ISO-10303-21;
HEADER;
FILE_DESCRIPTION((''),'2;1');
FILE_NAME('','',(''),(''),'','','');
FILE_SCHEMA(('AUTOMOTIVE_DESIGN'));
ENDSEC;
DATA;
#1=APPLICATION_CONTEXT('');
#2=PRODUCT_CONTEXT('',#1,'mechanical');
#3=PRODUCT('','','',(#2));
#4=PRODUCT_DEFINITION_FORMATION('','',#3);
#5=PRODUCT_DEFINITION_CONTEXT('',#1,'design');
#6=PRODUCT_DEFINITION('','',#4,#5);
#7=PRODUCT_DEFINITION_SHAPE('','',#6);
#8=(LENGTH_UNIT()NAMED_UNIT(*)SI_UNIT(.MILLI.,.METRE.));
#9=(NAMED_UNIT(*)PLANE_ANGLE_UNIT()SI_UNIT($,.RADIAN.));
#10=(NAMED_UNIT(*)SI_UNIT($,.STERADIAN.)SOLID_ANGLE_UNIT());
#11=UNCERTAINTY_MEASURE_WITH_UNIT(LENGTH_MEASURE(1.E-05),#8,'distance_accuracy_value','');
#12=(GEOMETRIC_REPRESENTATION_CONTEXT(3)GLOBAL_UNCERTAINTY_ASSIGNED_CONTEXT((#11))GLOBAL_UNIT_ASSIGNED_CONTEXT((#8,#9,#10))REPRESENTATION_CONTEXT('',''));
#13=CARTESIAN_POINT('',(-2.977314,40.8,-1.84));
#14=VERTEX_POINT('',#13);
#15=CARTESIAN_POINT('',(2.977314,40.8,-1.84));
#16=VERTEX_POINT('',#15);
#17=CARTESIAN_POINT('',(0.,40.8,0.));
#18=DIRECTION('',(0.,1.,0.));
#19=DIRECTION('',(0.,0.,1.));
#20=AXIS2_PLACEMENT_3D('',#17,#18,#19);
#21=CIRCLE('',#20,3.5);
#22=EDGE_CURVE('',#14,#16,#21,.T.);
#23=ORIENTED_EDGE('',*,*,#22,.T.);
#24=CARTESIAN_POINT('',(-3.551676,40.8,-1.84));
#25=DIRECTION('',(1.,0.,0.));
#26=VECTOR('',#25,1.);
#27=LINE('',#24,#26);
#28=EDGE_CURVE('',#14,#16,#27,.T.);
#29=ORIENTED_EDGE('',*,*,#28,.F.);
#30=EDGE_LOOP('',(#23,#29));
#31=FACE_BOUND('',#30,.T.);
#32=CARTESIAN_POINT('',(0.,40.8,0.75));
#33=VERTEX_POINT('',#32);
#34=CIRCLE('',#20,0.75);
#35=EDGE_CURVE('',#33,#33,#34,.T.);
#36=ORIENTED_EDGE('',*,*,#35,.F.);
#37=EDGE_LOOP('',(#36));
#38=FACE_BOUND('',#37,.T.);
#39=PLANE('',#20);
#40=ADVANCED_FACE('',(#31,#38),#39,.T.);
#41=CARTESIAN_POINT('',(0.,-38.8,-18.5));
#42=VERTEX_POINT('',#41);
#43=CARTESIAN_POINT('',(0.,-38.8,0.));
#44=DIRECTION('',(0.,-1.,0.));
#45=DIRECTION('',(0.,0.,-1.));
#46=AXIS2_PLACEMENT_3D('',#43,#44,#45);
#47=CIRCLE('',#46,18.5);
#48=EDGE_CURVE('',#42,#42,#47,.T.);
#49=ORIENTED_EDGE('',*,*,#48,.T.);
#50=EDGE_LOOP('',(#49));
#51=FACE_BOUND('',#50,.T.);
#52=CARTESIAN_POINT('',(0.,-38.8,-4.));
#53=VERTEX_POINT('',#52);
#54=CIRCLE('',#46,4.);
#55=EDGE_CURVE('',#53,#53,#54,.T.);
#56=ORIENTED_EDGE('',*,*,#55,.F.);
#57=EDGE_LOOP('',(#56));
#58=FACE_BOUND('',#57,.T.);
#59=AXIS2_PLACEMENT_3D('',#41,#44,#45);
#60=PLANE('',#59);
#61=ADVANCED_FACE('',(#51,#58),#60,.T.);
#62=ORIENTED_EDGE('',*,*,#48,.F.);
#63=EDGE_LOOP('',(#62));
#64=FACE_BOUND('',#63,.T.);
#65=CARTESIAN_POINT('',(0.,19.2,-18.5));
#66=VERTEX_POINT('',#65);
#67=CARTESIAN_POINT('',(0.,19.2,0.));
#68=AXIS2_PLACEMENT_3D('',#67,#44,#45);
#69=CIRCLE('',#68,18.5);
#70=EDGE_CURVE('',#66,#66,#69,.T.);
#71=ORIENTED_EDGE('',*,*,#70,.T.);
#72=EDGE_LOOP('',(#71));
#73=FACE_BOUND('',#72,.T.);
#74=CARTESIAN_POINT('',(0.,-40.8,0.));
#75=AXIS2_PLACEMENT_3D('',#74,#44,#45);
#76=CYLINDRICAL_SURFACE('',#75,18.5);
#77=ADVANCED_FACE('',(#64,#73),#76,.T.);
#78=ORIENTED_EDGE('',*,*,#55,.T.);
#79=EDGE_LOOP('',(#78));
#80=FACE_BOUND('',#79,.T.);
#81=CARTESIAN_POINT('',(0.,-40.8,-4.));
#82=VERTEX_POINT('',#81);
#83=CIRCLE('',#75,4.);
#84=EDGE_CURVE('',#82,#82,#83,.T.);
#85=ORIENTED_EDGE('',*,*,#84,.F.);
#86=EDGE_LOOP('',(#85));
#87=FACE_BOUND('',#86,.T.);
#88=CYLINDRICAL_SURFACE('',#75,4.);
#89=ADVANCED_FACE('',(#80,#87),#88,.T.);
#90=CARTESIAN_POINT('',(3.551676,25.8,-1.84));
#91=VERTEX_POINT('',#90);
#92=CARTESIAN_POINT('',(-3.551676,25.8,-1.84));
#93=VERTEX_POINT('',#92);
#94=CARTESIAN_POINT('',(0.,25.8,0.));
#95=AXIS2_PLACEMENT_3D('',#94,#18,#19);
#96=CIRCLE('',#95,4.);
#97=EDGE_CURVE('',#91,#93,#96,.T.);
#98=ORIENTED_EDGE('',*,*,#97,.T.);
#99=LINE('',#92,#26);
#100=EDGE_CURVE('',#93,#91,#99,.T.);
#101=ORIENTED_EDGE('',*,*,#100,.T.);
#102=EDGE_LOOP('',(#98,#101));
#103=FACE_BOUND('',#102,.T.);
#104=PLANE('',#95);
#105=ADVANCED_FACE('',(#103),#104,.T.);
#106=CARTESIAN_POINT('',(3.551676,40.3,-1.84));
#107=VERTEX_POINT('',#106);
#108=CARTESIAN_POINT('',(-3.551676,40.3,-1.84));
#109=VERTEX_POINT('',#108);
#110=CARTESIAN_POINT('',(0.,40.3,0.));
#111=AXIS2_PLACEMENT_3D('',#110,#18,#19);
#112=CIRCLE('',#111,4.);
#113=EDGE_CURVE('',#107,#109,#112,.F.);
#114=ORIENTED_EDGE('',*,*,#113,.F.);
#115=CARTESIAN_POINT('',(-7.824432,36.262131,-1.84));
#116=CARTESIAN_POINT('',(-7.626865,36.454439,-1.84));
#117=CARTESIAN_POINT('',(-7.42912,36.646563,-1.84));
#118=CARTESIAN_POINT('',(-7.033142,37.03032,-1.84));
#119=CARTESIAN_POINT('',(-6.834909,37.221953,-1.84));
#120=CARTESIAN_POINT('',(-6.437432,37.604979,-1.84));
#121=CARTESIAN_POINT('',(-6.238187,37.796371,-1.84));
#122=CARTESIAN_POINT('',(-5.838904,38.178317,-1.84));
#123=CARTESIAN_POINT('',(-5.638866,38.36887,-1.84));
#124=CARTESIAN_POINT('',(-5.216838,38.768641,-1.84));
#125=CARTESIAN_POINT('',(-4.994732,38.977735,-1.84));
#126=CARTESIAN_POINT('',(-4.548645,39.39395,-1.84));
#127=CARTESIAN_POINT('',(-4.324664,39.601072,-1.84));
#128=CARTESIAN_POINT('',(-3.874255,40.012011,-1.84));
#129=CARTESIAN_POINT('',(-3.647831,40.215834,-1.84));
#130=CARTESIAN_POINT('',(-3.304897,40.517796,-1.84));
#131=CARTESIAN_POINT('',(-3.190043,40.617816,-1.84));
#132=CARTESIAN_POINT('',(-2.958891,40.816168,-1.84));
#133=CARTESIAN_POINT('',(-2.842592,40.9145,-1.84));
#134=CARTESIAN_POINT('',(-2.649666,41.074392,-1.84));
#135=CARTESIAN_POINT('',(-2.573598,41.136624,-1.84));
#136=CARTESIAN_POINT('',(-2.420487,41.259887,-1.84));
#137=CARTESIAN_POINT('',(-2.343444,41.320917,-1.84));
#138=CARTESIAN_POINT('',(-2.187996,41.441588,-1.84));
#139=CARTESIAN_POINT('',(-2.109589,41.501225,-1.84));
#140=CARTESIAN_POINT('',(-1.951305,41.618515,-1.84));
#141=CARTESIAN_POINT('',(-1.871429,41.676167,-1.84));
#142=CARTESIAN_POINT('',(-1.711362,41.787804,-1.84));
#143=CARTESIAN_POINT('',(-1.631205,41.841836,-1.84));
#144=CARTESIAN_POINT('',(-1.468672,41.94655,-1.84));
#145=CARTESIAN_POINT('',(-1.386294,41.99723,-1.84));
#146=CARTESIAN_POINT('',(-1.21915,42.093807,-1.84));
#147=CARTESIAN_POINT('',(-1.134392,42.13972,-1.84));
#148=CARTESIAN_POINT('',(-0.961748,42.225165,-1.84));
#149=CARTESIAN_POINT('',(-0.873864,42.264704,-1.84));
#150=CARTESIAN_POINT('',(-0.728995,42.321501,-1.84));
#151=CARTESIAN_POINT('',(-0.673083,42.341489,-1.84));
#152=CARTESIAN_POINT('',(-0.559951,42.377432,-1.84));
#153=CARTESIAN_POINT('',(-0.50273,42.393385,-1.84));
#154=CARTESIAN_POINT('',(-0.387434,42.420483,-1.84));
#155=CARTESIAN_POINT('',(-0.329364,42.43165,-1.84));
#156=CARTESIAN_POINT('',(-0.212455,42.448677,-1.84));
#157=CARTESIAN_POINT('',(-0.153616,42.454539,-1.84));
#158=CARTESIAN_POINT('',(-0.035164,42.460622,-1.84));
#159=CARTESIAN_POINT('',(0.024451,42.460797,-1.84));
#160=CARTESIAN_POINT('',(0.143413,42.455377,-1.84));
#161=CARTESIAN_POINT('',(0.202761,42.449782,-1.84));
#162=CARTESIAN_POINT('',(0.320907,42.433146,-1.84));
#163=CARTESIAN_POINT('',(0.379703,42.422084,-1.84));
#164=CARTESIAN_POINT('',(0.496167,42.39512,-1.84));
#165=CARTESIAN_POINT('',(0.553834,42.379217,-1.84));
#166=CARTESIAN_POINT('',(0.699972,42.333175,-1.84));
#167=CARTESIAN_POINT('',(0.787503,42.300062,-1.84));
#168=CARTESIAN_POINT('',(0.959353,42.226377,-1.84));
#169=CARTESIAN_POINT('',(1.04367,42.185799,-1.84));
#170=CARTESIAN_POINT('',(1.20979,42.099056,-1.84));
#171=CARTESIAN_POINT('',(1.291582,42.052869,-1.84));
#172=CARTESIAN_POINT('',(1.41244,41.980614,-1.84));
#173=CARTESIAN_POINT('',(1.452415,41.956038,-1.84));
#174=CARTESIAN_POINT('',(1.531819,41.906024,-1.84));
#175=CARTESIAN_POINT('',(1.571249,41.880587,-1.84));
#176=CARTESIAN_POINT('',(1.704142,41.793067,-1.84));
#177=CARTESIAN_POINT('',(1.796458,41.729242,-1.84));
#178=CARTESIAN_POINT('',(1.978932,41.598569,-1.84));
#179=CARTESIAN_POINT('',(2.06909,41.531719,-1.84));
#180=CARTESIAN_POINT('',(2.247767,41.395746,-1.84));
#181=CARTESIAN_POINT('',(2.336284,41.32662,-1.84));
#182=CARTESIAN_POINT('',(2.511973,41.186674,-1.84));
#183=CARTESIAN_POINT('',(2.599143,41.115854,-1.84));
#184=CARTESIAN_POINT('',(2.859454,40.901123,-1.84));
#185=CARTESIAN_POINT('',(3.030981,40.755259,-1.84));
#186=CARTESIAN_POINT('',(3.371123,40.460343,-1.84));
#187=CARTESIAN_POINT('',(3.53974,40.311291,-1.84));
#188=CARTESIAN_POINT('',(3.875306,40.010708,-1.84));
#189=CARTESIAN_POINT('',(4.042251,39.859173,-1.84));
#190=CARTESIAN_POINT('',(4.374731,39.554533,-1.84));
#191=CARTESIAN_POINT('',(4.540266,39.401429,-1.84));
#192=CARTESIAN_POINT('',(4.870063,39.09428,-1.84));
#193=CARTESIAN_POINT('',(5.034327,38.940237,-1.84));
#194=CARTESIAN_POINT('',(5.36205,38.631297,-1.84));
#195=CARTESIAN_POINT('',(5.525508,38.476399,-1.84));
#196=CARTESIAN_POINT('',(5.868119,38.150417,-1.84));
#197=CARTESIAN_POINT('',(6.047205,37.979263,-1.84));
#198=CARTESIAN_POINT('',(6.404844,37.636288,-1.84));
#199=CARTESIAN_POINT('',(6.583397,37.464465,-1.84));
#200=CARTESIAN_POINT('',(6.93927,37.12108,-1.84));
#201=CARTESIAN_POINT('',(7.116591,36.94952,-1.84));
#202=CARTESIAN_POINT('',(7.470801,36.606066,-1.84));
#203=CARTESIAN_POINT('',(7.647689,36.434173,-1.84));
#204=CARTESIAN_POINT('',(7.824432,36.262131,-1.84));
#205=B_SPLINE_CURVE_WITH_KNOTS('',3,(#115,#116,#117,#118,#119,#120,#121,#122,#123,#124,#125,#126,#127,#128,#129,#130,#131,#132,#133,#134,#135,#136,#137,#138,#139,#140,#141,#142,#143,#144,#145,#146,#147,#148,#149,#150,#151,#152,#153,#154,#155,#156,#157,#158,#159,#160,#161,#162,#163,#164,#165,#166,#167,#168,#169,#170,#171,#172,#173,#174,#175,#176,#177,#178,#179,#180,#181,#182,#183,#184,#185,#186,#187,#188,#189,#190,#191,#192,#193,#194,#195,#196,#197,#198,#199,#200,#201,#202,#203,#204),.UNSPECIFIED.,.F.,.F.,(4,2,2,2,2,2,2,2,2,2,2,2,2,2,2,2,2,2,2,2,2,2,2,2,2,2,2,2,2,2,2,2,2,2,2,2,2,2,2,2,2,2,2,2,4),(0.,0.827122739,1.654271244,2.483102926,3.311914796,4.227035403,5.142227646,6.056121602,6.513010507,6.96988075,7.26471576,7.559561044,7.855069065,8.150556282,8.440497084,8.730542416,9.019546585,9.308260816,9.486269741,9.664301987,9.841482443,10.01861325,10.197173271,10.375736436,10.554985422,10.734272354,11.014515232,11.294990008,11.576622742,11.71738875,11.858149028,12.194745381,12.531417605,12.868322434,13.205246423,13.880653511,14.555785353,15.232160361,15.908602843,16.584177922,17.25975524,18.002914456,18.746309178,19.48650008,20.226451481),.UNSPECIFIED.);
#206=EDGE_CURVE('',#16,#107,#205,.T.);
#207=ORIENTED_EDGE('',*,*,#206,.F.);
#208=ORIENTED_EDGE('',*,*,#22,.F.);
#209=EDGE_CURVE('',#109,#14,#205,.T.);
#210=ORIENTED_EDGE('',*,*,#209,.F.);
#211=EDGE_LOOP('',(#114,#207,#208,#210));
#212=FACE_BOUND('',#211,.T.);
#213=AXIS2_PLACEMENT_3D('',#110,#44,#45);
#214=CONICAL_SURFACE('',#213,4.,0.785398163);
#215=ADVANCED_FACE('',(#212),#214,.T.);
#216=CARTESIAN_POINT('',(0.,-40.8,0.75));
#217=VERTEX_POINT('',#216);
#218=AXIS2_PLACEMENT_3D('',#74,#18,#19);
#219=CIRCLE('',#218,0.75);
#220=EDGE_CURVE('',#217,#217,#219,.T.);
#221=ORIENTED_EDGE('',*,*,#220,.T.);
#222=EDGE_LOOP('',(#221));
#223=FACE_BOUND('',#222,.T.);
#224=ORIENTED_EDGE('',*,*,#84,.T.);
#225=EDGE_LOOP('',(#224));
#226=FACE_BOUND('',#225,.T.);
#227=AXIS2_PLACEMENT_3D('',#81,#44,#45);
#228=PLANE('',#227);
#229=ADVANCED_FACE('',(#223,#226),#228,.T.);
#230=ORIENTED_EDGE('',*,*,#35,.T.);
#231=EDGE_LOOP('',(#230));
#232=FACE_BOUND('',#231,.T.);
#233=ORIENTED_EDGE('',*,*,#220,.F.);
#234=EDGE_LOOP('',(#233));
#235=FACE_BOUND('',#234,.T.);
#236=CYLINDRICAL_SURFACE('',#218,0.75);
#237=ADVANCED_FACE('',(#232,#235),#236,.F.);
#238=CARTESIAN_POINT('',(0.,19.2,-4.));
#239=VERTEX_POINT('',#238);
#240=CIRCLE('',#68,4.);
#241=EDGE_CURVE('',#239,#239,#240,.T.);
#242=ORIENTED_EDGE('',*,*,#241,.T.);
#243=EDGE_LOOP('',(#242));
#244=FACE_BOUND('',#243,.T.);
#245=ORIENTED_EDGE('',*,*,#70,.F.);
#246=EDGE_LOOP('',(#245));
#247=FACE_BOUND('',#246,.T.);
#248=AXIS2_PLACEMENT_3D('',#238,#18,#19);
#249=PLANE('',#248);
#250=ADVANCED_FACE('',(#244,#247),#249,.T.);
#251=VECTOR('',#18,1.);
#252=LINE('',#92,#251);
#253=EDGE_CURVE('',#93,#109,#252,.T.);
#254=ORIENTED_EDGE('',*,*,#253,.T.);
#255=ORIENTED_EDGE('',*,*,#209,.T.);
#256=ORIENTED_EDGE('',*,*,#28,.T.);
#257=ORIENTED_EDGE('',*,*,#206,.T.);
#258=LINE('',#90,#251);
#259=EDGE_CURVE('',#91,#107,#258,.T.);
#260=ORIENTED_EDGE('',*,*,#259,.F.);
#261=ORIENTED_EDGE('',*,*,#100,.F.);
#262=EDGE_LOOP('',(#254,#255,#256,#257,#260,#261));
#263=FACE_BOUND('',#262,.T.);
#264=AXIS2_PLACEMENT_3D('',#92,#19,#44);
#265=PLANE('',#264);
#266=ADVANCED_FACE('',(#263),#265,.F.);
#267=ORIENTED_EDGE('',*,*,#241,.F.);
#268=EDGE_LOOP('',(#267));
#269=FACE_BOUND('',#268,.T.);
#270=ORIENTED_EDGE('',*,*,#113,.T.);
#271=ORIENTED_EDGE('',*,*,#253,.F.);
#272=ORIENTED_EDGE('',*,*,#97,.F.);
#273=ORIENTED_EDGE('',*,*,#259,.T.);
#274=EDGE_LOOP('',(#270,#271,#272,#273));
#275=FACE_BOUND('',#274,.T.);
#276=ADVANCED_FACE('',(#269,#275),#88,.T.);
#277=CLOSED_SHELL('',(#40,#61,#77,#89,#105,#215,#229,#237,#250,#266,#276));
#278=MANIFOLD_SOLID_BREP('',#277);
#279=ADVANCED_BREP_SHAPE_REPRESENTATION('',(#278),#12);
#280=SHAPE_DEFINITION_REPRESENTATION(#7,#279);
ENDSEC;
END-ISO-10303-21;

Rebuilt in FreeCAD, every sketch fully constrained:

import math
import FreeCAD as App
import Part
import Sketcher

V = App.Vector
Q = App.Units.Quantity


def edges_at(feature, points):
    """Names of the edges that pass closest to the given points."""
    edges = feature.Shape.Edges
    near = lambda p: min(range(len(edges)), key=lambda i: edges[i].distToShape(Part.Vertex(*p))[0])
    return sorted({f"Edge{near(p) + 1}" for p in points})

doc = App.newDocument("Part")
body = doc.addObject("PartDesign::Body", "Body")

# Sketch on YZ plane
sketch1 = body.newObject("Sketcher::SketchObject", "Sketch")
sketch1.AttachmentSupport = (doc.getObject("YZ_Plane"), [""])
sketch1.MapMode = "FlatFace"
sketch1.addGeometry([
    Part.LineSegment(V(40.8, 0, 0), V(-40.8, 0, 0)),  # 0
    Part.LineSegment(V(-40.8, 0, 0), V(-40.8, -4, 0)),  # 1
    Part.LineSegment(V(-40.8, -4, 0), V(-38.8, -4, 0)),  # 2
    Part.LineSegment(V(-38.8, -4, 0), V(-38.8, -18.5, 0)),  # 3
    Part.LineSegment(V(-38.8, -18.5, 0), V(19.2, -18.5, 0)),  # 4
    Part.LineSegment(V(19.2, -18.5, 0), V(19.2, -4, 0)),  # 5
    Part.LineSegment(V(19.2, -4, 0), V(40.8, -4, 0)),  # 6
    Part.LineSegment(V(40.8, -4, 0), V(40.8, 0, 0)),  # 7
], False)
sketch1.addConstraint([
    Sketcher.Constraint("Coincident", 0, 2, 1, 1),
    Sketcher.Constraint("Coincident", 1, 2, 2, 1),
    Sketcher.Constraint("Coincident", 2, 2, 3, 1),
    Sketcher.Constraint("Coincident", 3, 2, 4, 1),
    Sketcher.Constraint("Coincident", 4, 2, 5, 1),
    Sketcher.Constraint("Coincident", 5, 2, 6, 1),
    Sketcher.Constraint("Coincident", 6, 2, 7, 1),
    Sketcher.Constraint("Coincident", 7, 2, 0, 1),
    Sketcher.Constraint("Horizontal", 0),
    Sketcher.Constraint("Vertical", 1),
    Sketcher.Constraint("Horizontal", 2),
    Sketcher.Constraint("Vertical", 3),
    Sketcher.Constraint("Horizontal", 4),
    Sketcher.Constraint("Vertical", 5),
    Sketcher.Constraint("Horizontal", 6),
    Sketcher.Constraint("Vertical", 7),
    Sketcher.Constraint("Symmetric", 0, 2, 7, 2, -1, 1),
    Sketcher.Constraint("Horizontal", 2, 2, 5, 2),
    Sketcher.Constraint("DistanceX", 2, 1, 2, 2, Q("2 mm")),
    Sketcher.Constraint("DistanceX", 4, 1, 4, 2, Q("58 mm")),
    Sketcher.Constraint("DistanceY", 1, 2, 1, 1, Q("4 mm")),
    Sketcher.Constraint("DistanceX", 0, 2, 0, 1, Q("81.6 mm")),
    Sketcher.Constraint("DistanceY", 3, 2, 3, 1, Q("14.5 mm")),
])
revolution = body.newObject("PartDesign::Revolution", "Revolution")
revolution.Profile = sketch1
revolution.ReferenceAxis = (sketch1, ["H_Axis"])
revolution.Angle = 360
doc.recompute()

chamfer = body.newObject("PartDesign::Chamfer", "Chamfer")
chamfer.Base = (revolution, edges_at(revolution, [(0, 40.8, 4)]))
chamfer.Size = 0.5

# Sketch on XZ plane
sketch2 = body.newObject("Sketcher::SketchObject", "Sketch001")
sketch2.AttachmentSupport = (doc.getObject("XZ_Plane"), [""])
sketch2.MapMode = "FlatFace"
sketch2.AttachmentOffset = App.Placement(V(0, 0, -25.8), App.Rotation())
sketch2.addGeometry([
    Part.LineSegment(V(-3.6, -1.8, 0), V(3.6, -1.8, 0)),
    Part.ArcOfCircle(Part.Circle(V(0, 0, 0), V(0, 0, 1), 4), math.radians(-153), math.radians(-27)),
], False)
sketch2.addConstraint([
    Sketcher.Constraint("Coincident", 0, 1, 1, 1),
    Sketcher.Constraint("Coincident", 1, 2, 0, 2),
    Sketcher.Constraint("Horizontal", 0),
    Sketcher.Constraint("Coincident", 1, 3, -1, 1),
    Sketcher.Constraint("Radius", 1, Q("4 mm")),
    Sketcher.Constraint("DistanceY", 0, 1, -1, 1, Q("1.84 mm")),
])
pocket1 = body.newObject("PartDesign::Pocket", "Pocket")
pocket1.Profile = sketch2
pocket1.Length = 15

# Sketch on XZ plane
sketch3 = body.newObject("Sketcher::SketchObject", "Sketch002")
sketch3.AttachmentSupport = (doc.getObject("XZ_Plane"), [""])
sketch3.MapMode = "FlatFace"
sketch3.AttachmentOffset = App.Placement(V(0, 0, -40.8), App.Rotation())
sketch3.addGeometry(Part.Circle(V(0, 0, 0), V(0, 0, 1), 0.8), False)
sketch3.addConstraint([
    Sketcher.Constraint("Coincident", 0, 3, -1, 1),
    Sketcher.Constraint("Diameter", 0, Q("1.5 mm")),
])
pocket2 = body.newObject("PartDesign::Pocket", "Pocket001")
pocket2.Profile = sketch3
pocket2.Type = "ThroughAll"
pocket2.Reversed = True

doc.recompute()
